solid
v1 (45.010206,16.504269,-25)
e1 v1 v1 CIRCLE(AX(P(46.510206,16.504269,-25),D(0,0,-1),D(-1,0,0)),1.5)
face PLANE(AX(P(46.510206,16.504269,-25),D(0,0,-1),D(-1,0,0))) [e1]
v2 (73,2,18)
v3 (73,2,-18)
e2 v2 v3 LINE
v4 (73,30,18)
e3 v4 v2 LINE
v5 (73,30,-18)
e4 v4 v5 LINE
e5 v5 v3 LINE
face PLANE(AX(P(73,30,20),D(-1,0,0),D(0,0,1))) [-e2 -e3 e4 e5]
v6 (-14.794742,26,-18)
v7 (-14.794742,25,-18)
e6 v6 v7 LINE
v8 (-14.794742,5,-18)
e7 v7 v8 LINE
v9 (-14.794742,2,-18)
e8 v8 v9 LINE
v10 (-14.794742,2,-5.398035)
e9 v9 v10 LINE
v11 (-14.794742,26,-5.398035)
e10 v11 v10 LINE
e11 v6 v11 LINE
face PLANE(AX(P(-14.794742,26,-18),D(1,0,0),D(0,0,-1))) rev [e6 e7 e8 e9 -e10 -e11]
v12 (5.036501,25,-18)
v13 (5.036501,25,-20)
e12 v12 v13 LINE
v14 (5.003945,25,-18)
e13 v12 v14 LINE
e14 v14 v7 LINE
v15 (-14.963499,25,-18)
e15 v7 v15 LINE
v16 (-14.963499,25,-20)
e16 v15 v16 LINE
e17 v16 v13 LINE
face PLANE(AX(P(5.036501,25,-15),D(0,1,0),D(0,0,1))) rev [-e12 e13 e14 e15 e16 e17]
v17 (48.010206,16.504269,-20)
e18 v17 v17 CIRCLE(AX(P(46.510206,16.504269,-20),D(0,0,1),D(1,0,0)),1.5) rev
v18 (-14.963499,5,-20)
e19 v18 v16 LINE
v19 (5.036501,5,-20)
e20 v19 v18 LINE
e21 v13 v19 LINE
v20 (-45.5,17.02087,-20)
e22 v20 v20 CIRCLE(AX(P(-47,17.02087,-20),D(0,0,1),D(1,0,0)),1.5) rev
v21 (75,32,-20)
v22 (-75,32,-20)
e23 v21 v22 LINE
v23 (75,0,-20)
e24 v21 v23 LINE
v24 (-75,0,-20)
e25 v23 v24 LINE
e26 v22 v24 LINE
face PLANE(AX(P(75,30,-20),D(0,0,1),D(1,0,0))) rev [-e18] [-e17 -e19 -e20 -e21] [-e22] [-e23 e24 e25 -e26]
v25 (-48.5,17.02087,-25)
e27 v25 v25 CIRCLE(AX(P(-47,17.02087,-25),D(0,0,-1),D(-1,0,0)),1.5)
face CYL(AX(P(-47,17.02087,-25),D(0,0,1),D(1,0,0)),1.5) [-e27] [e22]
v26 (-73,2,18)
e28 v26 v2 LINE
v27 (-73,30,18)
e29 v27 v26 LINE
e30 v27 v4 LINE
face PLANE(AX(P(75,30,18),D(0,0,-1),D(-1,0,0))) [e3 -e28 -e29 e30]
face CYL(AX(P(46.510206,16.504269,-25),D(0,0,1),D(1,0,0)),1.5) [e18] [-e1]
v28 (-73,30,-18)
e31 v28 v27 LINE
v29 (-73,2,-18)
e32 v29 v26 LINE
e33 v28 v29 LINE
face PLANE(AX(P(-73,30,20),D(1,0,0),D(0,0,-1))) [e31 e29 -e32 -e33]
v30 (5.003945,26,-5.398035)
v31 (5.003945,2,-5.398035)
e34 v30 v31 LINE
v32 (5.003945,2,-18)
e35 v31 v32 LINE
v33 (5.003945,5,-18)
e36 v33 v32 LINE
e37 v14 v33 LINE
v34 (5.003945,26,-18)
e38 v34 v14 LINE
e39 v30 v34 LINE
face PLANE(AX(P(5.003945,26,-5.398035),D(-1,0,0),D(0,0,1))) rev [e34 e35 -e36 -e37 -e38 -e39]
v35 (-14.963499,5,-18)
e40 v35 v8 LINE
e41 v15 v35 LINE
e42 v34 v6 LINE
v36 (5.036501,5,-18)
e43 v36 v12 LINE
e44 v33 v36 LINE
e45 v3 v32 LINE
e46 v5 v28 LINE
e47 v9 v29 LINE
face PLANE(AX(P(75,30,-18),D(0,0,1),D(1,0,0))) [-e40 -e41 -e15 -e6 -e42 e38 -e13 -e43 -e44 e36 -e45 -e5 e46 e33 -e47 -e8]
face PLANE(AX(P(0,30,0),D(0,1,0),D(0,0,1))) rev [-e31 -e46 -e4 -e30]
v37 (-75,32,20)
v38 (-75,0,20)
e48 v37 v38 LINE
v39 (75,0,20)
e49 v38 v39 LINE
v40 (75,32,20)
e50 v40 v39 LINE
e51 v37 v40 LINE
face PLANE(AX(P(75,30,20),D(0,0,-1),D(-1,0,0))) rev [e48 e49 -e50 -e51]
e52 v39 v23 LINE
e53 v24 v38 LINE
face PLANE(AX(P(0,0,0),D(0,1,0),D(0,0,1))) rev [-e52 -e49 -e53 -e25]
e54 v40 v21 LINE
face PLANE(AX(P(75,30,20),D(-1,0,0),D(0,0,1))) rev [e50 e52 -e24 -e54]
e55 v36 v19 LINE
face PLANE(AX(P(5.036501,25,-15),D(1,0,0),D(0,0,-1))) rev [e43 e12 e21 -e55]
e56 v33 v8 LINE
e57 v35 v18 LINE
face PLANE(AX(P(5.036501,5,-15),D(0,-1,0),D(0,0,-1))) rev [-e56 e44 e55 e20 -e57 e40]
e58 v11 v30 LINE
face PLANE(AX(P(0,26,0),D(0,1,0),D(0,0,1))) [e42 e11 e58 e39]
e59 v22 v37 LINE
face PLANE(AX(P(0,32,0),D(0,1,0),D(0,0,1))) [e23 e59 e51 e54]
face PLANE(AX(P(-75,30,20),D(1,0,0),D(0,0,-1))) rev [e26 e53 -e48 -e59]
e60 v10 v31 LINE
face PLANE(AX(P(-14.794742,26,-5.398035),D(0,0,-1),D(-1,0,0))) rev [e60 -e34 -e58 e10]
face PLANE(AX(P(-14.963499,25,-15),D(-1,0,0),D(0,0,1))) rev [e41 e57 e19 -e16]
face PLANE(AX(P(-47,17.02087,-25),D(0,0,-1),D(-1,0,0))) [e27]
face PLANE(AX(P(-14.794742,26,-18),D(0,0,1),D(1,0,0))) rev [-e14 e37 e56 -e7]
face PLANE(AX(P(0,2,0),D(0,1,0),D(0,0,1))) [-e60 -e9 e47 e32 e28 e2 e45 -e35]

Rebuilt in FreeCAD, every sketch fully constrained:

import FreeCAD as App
import Part
import Sketcher


def faces_at(feature, points):
    """Names of the faces that lie closest to the given points."""
    faces = feature.Shape.Faces
    near = lambda p: min(range(len(faces)), key=lambda i: faces[i].distToShape(Part.Vertex(*p))[0])
    return sorted({f"Face{near(p) + 1}" for p in points})

doc = App.newDocument("Part")
body = doc.addObject("PartDesign::Body", "Body")

# Sketch on XZ plane
sketch1 = body.newObject("Sketcher::SketchObject", "Sketch")
sketch1.AttachmentSupport = (doc.getObject("XZ_Plane"), [""])
sketch1.MapMode = "FlatFace"
sketch1.addGeometry([
    Part.LineSegment(App.Vector(-75, -20, 0), App.Vector(-75, 20, 0)),
    Part.LineSegment(App.Vector(-75, 20, 0), App.Vector(75, 20, 0)),
    Part.LineSegment(App.Vector(75, 20, 0), App.Vector(75, -20, 0)),
    Part.LineSegment(App.Vector(75, -20, 0), App.Vector(-75, -20, 0)),
], False)
sketch1.addConstraint([
    Sketcher.Constraint("Coincident", 0, 2, 1, 1),
    Sketcher.Constraint("Coincident", 1, 2, 2, 1),
    Sketcher.Constraint("Coincident", 2, 2, 3, 1),
    Sketcher.Constraint("Coincident", 3, 2, 0, 1),
    Sketcher.Constraint("Vertical", 0),
    Sketcher.Constraint("Horizontal", 1),
    Sketcher.Constraint("Vertical", 2),
    Sketcher.Constraint("Horizontal", 3),
    Sketcher.Constraint("Symmetric", 0, 2, 2, 2, -1, 1),
    Sketcher.Constraint("DistanceX", 1, 1, 1, 2, 150.0),
    Sketcher.Constraint("DistanceY", 0, 1, 0, 2, 40.0),
])
pad1 = body.newObject("PartDesign::Pad", "Pad")
pad1.Profile = sketch1
pad1.Length = 30
pad1.Reversed = True
doc.recompute()

thickness = body.newObject("PartDesign::Thickness", "Thickness")
thickness.Base = (pad1, faces_at(pad1, [(0, 30, 0)]))
thickness.Value = 2
thickness.Reversed = True
thickness.Join = "Intersection"

# Sketch on XY plane
sketch2 = body.newObject("Sketcher::SketchObject", "Sketch001")
sketch2.AttachmentSupport = (doc.getObject("XY_Plane"), [""])
sketch2.MapMode = "FlatFace"
sketch2.AttachmentOffset = App.Placement(App.Vector(0, 0, -20), App.Rotation())
sketch2.addGeometry([
    Part.LineSegment(App.Vector(5, 25, 0), App.Vector(5, 5, 0)),
    Part.LineSegment(App.Vector(5, 5, 0), App.Vector(-15, 5, 0)),
    Part.LineSegment(App.Vector(-15, 5, 0), App.Vector(-15, 25, 0)),
    Part.LineSegment(App.Vector(-15, 25, 0), App.Vector(5, 25, 0)),
], False)
sketch2.addConstraint([
    Sketcher.Constraint("Coincident", 0, 2, 1, 1),
    Sketcher.Constraint("Coincident", 1, 2, 2, 1),
    Sketcher.Constraint("Coincident", 2, 2, 3, 1),
    Sketcher.Constraint("Coincident", 3, 2, 0, 1),
    Sketcher.Constraint("Vertical", 0),
    Sketcher.Constraint("Horizontal", 1),
    Sketcher.Constraint("Vertical", 2),
    Sketcher.Constraint("Horizontal", 3),
    Sketcher.Constraint("Equal", 3, 0),
    Sketcher.Constraint("DistanceX", 1, 2, 1, 1, 20.0),
    Sketcher.Constraint("DistanceY", -1, 1, 0, 2, 5.0),
    Sketcher.Constraint("DistanceX", -1, 1, 0, 2, 5.036501),
])
pocket1 = body.newObject("PartDesign::Pocket", "Pocket")
pocket1.Profile = sketch2
pocket1.Length = 5
pocket1.Reversed = True

# Sketch on XZ plane
sketch3 = body.newObject("Sketcher::SketchObject", "Sketch002")
sketch3.AttachmentSupport = (doc.getObject("XZ_Plane"), [""])
sketch3.MapMode = "FlatFace"
sketch3.AttachmentOffset = App.Placement(App.Vector(0, 0, -2), App.Rotation())
sketch3.addGeometry([
    Part.LineSegment(App.Vector(-15, -18, 0), App.Vector(-15, -5, 0)),
    Part.LineSegment(App.Vector(-15, -5, 0), App.Vector(5, -5, 0)),
    Part.LineSegment(App.Vector(5, -5, 0), App.Vector(5, -18, 0)),
    Part.LineSegment(App.Vector(5, -18, 0), App.Vector(-15, -18, 0)),
], False)
sketch3.addConstraint([
    Sketcher.Constraint("Coincident", 0, 2, 1, 1),
    Sketcher.Constraint("Coincident", 1, 2, 2, 1),
    Sketcher.Constraint("Coincident", 2, 2, 3, 1),
    Sketcher.Constraint("Coincident", 3, 2, 0, 1),
    Sketcher.Constraint("Vertical", 0),
    Sketcher.Constraint("Horizontal", 1),
    Sketcher.Constraint("Vertical", 2),
    Sketcher.Constraint("Horizontal", 3),
    Sketcher.Constraint("DistanceY", 2, 2, -1, 1, 18.0),
    Sketcher.Constraint("DistanceX", 1, 1, 1, 2, 19.798688),
    Sketcher.Constraint("DistanceY", 0, 1, 0, 2, 12.601965),
    Sketcher.Constraint("DistanceX", 0, 2, -1, 1, 14.794742),
])
pad2 = body.newObject("PartDesign::Pad", "Pad001")
pad2.Profile = sketch3
pad2.Length = 24
pad2.Reversed = True

# Sketch on XZ plane
sketch4 = body.newObject("Sketcher::SketchObject", "Sketch003")
sketch4.AttachmentSupport = (doc.getObject("XZ_Plane"), [""])
sketch4.MapMode = "FlatFace"
sketch4.AttachmentOffset = App.Placement(App.Vector(0, 0, -30), App.Rotation())
sketch4.addGeometry([
    Part.LineSegment(App.Vector(-75, -20, 0), App.Vector(-75, 20, 0)),
    Part.LineSegment(App.Vector(-75, 20, 0), App.Vector(75, 20, 0)),
    Part.LineSegment(App.Vector(75, 20, 0), App.Vector(75, -20, 0)),
    Part.LineSegment(App.Vector(75, -20, 0), App.Vector(-75, -20, 0)),
], False)
sketch4.addConstraint([
    Sketcher.Constraint("Coincident", 0, 2, 1, 1),
    Sketcher.Constraint("Coincident", 1, 2, 2, 1),
    Sketcher.Constraint("Coincident", 2, 2, 3, 1),
    Sketcher.Constraint("Coincident", 3, 2, 0, 1),
    Sketcher.Constraint("Vertical", 0),
    Sketcher.Constraint("Horizontal", 1),
    Sketcher.Constraint("Vertical", 2),
    Sketcher.Constraint("Horizontal", 3),
    Sketcher.Constraint("Symmetric", 0, 2, 2, 2, -1, 1),
    Sketcher.Constraint("DistanceX", 1, 1, 1, 2, 150.0),
    Sketcher.Constraint("DistanceY", 0, 1, 0, 2, 40.0),
])
pad3 = body.newObject("PartDesign::Pad", "Pad002")
pad3.Profile = sketch4
pad3.Length = 2
pad3.Reversed = True

# Sketch on XY plane
sketch5 = body.newObject("Sketcher::SketchObject", "Sketch004")
sketch5.AttachmentSupport = (doc.getObject("XY_Plane"), [""])
sketch5.MapMode = "FlatFace"
sketch5.AttachmentOffset = App.Placement(App.Vector(0, 0, -20), App.Rotation())
sketch5.addGeometry(Part.Circle(App.Vector(46.5, 16.5, 0), App.Vector(0, 0, 1), 1.5), False)
sketch5.addConstraint([
    Sketcher.Constraint("Diameter", 0, 3.0),
    Sketcher.Constraint("DistanceY", -1, 1, 0, 3, 16.504269),
    Sketcher.Constraint("DistanceX", -1, 1, 0, 3, 46.510206),
])
pad4 = body.newObject("PartDesign::Pad", "Pad003")
pad4.Profile = sketch5
pad4.Length = 5
pad4.Reversed = True

# Sketch on XY plane
sketch6 = body.newObject("Sketcher::SketchObject", "Sketch005")
sketch6.AttachmentSupport = (doc.getObject("XY_Plane"), [""])
sketch6.MapMode = "FlatFace"
sketch6.AttachmentOffset = App.Placement(App.Vector(0, 0, -20), App.Rotation())
sketch6.addGeometry(Part.Circle(App.Vector(-47, 17, 0), App.Vector(0, 0, 1), 1.5), False)
sketch6.addConstraint([
    Sketcher.Constraint("Diameter", 0, 3.0),
    Sketcher.Constraint("DistanceX", 0, 3, -1, 1, 47.0),
    Sketcher.Constraint("DistanceY", -1, 1, 0, 3, 17.02087),
])
pad5 = body.newObject("PartDesign::Pad", "Pad004")
pad5.Profile = sketch6
pad5.Length = 5
pad5.Reversed = True

doc.recompute()
